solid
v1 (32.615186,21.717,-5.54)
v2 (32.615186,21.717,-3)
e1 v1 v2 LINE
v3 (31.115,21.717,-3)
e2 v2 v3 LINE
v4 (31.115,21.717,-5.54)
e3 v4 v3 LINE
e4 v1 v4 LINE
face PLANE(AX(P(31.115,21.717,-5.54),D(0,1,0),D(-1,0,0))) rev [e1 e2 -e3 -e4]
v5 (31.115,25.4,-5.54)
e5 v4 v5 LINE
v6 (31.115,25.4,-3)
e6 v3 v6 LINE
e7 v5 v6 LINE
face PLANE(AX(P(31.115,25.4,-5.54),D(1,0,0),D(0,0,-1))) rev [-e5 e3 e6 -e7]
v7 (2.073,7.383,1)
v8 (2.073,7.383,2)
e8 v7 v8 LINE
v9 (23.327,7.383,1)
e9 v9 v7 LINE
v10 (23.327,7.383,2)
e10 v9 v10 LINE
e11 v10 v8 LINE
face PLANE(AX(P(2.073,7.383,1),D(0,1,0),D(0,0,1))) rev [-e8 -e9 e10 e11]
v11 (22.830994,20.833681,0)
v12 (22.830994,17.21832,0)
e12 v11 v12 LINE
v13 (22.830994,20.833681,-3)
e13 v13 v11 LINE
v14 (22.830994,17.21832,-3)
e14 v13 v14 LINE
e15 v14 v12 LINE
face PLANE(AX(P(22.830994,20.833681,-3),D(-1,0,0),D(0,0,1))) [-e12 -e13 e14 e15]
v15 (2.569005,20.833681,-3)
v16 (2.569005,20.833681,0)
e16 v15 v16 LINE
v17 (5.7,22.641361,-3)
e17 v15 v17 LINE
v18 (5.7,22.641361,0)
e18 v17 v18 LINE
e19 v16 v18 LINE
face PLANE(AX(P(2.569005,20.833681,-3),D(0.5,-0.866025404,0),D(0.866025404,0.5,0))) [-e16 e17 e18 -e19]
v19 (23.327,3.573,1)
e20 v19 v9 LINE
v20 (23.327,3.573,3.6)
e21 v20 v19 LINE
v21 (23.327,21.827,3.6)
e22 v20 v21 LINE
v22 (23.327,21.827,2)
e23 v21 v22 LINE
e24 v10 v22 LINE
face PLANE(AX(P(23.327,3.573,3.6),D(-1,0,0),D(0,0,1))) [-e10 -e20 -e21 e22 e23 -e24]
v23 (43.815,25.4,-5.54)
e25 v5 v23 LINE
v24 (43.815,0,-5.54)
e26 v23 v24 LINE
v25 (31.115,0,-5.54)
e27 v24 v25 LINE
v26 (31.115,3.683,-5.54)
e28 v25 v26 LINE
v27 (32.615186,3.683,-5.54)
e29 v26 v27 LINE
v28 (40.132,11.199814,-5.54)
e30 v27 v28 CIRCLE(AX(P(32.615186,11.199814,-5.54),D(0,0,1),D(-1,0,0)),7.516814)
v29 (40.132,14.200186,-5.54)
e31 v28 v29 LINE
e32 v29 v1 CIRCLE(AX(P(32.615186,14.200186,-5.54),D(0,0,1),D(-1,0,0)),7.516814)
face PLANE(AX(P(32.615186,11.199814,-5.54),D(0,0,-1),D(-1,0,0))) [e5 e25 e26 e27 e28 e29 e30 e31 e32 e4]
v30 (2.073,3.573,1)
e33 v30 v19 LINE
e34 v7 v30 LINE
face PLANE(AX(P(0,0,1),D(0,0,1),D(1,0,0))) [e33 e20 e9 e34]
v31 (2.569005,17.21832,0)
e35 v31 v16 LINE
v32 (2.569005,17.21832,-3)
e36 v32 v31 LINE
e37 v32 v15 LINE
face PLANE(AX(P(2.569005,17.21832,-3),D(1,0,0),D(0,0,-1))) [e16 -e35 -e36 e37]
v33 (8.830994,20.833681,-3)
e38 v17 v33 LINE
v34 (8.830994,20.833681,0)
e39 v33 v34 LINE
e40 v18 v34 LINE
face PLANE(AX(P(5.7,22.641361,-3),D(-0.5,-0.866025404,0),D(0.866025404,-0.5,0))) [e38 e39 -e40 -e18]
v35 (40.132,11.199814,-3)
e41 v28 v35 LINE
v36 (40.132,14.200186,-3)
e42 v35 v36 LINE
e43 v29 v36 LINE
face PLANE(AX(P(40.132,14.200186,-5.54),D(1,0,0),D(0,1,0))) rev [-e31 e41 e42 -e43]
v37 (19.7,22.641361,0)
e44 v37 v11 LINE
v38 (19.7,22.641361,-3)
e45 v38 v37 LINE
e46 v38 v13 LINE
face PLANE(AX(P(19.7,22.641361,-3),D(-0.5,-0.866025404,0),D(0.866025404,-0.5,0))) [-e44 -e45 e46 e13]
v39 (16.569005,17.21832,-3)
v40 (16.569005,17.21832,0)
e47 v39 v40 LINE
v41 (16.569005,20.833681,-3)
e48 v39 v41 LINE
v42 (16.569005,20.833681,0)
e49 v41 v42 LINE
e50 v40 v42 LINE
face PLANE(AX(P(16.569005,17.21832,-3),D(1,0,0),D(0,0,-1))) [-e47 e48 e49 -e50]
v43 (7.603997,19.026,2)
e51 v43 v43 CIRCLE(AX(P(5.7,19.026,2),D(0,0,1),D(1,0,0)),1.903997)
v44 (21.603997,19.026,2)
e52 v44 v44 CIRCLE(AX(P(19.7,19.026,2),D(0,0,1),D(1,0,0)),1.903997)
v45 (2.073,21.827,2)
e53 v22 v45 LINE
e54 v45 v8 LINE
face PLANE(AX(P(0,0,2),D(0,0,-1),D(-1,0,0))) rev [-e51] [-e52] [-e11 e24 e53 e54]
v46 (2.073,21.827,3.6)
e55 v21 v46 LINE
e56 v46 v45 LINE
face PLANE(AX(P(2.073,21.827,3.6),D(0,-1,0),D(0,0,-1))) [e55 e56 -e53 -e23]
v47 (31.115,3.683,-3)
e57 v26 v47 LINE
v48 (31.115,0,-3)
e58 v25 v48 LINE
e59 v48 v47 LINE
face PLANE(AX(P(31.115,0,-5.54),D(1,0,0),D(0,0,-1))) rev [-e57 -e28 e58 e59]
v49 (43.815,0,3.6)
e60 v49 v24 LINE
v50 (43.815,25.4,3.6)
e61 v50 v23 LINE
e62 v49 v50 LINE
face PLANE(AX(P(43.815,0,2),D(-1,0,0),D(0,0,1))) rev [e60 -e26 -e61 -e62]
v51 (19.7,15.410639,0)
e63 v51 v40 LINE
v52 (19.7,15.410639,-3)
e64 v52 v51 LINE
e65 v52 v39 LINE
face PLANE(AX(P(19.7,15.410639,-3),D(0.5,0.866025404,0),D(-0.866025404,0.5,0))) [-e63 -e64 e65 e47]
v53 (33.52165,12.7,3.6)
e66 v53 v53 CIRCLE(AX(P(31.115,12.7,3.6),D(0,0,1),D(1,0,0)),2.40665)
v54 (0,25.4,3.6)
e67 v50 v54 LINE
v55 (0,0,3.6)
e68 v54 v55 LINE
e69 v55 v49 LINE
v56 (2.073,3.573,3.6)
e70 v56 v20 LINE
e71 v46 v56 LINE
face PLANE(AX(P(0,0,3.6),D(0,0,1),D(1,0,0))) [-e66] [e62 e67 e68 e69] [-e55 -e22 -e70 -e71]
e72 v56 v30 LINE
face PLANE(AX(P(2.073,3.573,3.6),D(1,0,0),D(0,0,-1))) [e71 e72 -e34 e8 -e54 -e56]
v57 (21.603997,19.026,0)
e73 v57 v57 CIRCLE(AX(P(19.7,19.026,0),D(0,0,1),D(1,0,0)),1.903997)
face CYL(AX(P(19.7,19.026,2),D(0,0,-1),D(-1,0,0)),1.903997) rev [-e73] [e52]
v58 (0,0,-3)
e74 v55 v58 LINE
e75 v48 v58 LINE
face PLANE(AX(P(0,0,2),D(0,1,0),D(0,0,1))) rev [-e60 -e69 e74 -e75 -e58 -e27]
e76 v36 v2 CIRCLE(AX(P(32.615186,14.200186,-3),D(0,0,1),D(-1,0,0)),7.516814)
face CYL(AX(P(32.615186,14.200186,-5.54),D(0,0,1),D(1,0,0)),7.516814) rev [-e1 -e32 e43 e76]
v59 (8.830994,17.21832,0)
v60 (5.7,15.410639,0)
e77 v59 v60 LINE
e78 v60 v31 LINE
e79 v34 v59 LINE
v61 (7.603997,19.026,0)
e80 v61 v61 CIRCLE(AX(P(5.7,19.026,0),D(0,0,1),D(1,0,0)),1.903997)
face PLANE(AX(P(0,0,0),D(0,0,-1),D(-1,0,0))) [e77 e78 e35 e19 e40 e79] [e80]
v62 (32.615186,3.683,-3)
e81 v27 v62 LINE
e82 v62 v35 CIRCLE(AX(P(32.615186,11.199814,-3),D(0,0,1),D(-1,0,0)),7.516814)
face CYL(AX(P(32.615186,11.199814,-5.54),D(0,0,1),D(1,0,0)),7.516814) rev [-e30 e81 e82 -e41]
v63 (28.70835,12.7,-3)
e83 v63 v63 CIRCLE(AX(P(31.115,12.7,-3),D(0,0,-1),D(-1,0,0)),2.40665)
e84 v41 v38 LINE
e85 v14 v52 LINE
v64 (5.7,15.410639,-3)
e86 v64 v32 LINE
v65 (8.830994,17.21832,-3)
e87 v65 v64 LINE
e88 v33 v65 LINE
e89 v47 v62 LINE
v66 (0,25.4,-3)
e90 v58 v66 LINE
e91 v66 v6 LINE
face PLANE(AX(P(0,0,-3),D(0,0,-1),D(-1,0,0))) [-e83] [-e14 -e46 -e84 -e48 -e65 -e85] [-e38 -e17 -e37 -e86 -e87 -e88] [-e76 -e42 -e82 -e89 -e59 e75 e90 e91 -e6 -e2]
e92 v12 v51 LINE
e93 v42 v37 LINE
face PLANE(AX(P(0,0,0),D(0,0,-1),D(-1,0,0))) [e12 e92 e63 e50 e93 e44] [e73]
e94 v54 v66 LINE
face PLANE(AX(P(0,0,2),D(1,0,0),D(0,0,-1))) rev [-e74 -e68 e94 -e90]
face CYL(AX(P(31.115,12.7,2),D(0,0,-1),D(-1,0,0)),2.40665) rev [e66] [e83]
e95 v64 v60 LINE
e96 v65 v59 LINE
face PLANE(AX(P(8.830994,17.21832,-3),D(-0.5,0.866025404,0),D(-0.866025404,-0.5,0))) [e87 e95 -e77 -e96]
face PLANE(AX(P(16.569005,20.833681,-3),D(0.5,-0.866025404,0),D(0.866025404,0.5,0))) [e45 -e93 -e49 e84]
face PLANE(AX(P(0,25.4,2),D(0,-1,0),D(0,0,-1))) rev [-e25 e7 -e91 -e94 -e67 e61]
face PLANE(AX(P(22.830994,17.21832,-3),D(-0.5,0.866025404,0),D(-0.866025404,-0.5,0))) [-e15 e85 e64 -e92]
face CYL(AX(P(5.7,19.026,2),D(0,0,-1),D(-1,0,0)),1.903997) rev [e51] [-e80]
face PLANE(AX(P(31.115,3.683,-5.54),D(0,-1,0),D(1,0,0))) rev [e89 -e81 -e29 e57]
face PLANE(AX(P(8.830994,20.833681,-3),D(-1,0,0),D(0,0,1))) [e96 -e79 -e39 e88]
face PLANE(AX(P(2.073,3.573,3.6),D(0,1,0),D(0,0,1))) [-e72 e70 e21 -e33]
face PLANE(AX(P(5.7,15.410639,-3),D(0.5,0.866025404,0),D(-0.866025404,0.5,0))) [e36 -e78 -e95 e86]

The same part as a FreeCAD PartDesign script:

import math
import FreeCAD as App
import Part
import Sketcher
Q = App.Units.Quantity


def add_polygon(sketch, points):
    """Adds a closed chain of lines whose ends are joined by coincident constraints."""
    first, n = sketch.GeometryCount, len(points)
    for a, b in zip(points, points[1:] + points[:1]):
        sketch.addGeometry(Part.LineSegment(App.Vector(*a, 0), App.Vector(*b, 0)), False)
    for i in range(n):
        sketch.addConstraint(Sketcher.Constraint("Coincident", first + i, 2, first + (i + 1) % n, 1))

doc = App.newDocument("Part")
body = doc.addObject("PartDesign::Body", "Body")

sketch1 = body.newObject("Sketcher::SketchObject", "Sketch")
sketch1.AttachmentSupport = (doc.getObject("XY_Plane"), [""])
sketch1.MapMode = "FlatFace"
add_polygon(sketch1, [(0, 25.4), (0, 0), (43.8, 0), (43.8, 25.4)])
sketch1.addGeometry(Part.Circle(App.Vector(31.1, 12.7, 0), App.Vector(0, 0, 1), 2.4), False)
sketch1.addGeometry(Part.Circle(App.Vector(5.7, 19, 0), App.Vector(0, 0, 1), 1.9), False)
sketch1.addGeometry(Part.Circle(App.Vector(19.7, 19, 0), App.Vector(0, 0, 1), 1.9), False)
sketch1.addConstraint([
    Sketcher.Constraint("Vertical", 0),
    Sketcher.Constraint("Horizontal", 1),
    Sketcher.Constraint("Vertical", 2),
    Sketcher.Constraint("Horizontal", 3),
    Sketcher.Constraint("Coincident", 0, 2, -1, 1),
    Sketcher.Constraint("Equal", 5, 6),
    Sketcher.Constraint("Horizontal", 5, 3, 6, 3),
    Sketcher.Constraint("DistanceY", 0, 2, 0, 1, Q("1 in")),
    Sketcher.Constraint("Diameter", 4, Q("0.1895 in")),
    Sketcher.Constraint("DistanceY", -1, 1, 4, 3, Q("0.5 in")),
    Sketcher.Constraint("DistanceX", 4, 3, 1, 2, Q("0.5 in")),
    Sketcher.Constraint("DistanceX", 1, 1, 1, 2, Q("1.725 in")),
    Sketcher.Constraint("Diameter", 5, Q("3.807993 mm")),
    Sketcher.Constraint("DistanceX", -1, 1, 5, 3, Q("5.7 mm")),
    Sketcher.Constraint("DistanceY", -1, 1, 5, 3, Q("19.026 mm")),
    Sketcher.Constraint("DistanceX", -1, 1, 6, 3, Q("19.7 mm")),
])
pad1 = body.newObject("PartDesign::Pad", "Pad")
pad1.Profile = sketch1
pad1.Length = 2

sketch2 = body.newObject("Sketcher::SketchObject", "Sketch001")
sketch2.AttachmentSupport = (doc.getObject("XY_Plane"), [""])
sketch2.MapMode = "FlatFace"
sketch2.AttachmentOffset = App.Placement(App.Vector(0, 0, 2), App.Rotation())
add_polygon(sketch2, [(0, 25.4), (0, 0), (43.8, 0), (43.8, 25.4)])
add_polygon(sketch2, [(23.3, 3.6), (2.1, 3.6), (2.1, 21.8), (23.3, 21.8)])
sketch2.addGeometry(Part.Circle(App.Vector(31.1, 12.7, 0), App.Vector(0, 0, 1), 2.4), False)
sketch2.addConstraint([
    Sketcher.Constraint("Vertical", 0),
    Sketcher.Constraint("Horizontal", 1),
    Sketcher.Constraint("Vertical", 2),
    Sketcher.Constraint("Horizontal", 3),
    Sketcher.Constraint("Horizontal", 4),
    Sketcher.Constraint("Vertical", 5),
    Sketcher.Constraint("Horizontal", 6),
    Sketcher.Constraint("Vertical", 7),
    Sketcher.Constraint("Coincident", 0, 2, -1, 1),
    Sketcher.Constraint("DistanceY", 0, 2, 0, 1, Q("1 in")),
    Sketcher.Constraint("Diameter", 8, Q("0.1895 in")),
    Sketcher.Constraint("DistanceY", -1, 1, 8, 3, Q("0.5 in")),
    Sketcher.Constraint("DistanceX", 8, 3, 1, 2, Q("0.5 in")),
    Sketcher.Constraint("DistanceX", 1, 1, 1, 2, Q("1.725 in")),
    Sketcher.Constraint("DistanceX", 4, 2, 4, 1, Q("21.254 mm")),
    Sketcher.Constraint("DistanceY", 5, 1, 5, 2, Q("18.254 mm")),
    Sketcher.Constraint("DistanceX", -1, 1, 4, 2, Q("2.073 mm")),
    Sketcher.Constraint("DistanceY", -1, 1, 4, 2, Q("3.573 mm")),
])
pad2 = body.newObject("PartDesign::Pad", "Pad001")
pad2.Profile = sketch2
pad2.Length = 1.6

sketch3 = body.newObject("Sketcher::SketchObject", "Sketch002")
sketch3.AttachmentSupport = (doc.getObject("XY_Plane"), [""])
sketch3.MapMode = "FlatFace"
sketch3.AttachmentOffset = App.Placement(App.Vector(0, 0, -3), App.Rotation())
add_polygon(sketch3, [(43.8, 25.4), (43.8, 0), (0, 0), (0, 25.4)])
sketch3.addGeometry(Part.Circle(App.Vector(31.1, 12.7, 0), App.Vector(0, 0, 1), 2.4), False)
add_polygon(sketch3, [(16.6, 20.8), (16.6, 17.2), (19.7, 15.4), (22.8, 17.2), (22.8, 20.8), (19.7, 22.6)])
add_polygon(sketch3, [(5.7, 22.6), (2.6, 20.8), (2.6, 17.2), (5.7, 15.4), (8.8, 17.2), (8.8, 20.8)])
sketch3.addConstraint([
    Sketcher.Constraint("Vertical", 0),
    Sketcher.Constraint("Horizontal", 1),
    Sketcher.Constraint("Vertical", 2),
    Sketcher.Constraint("Horizontal", 3),
    Sketcher.Constraint("Vertical", 5),
    Sketcher.Constraint("Vertical", 8),
    Sketcher.Constraint("Vertical", 12),
    Sketcher.Constraint("Vertical", 15),
    Sketcher.Constraint("Coincident", 1, 2, -1, 1),
    Sketcher.Constraint("Parallel", 6, 9),
    Sketcher.Constraint("Parallel", 7, 10),
    Sketcher.Constraint("Parallel", 10, 11),
    Sketcher.Constraint("Parallel", 9, 13),
    Sketcher.Constraint("Parallel", 11, 14),
    Sketcher.Constraint("Parallel", 13, 16),
    Sketcher.Constraint("Horizontal", 5, 2, 7, 2),
    Sketcher.Constraint("Horizontal", 8, 2, 10, 2),
    Sketcher.Constraint("Horizontal", 10, 2, 11, 2),
    Sketcher.Constraint("Horizontal", 7, 2, 12, 2),
    Sketcher.Constraint("Horizontal", 6, 2, 13, 2),
    Sketcher.Constraint("Horizontal", 12, 2, 14, 2),
    Sketcher.Constraint("Horizontal", 11, 2, 15, 2),
    Sketcher.Constraint("Vertical", 6, 2, 9, 2),
    Sketcher.Constraint("DistanceY", 0, 2, 0, 1, Q("1 in")),
    Sketcher.Constraint("Angle", 6, Q("-30 deg")),
    Sketcher.Constraint("Diameter", 4, Q("0.1895 in")),
    Sketcher.Constraint("DistanceY", -1, 1, 4, 3, Q("0.5 in")),
    Sketcher.Constraint("DistanceX", 4, 3, 0, 2, Q("0.5 in")),
    Sketcher.Constraint("DistanceX", 1, 2, 1, 1, Q("1.725 in")),
    Sketcher.Constraint("DistanceY", 5, 2, 5, 1, Q("3.615361 mm")),
    Sketcher.Constraint("DistanceX", -1, 1, 6, 2, Q("19.7 mm")),
    Sketcher.Constraint("DistanceX", -1, 1, 13, 2, Q("5.7 mm")),
    Sketcher.Constraint("Distance", 6, Q("3.615361 mm")),
    Sketcher.Constraint("DistanceY", -1, 1, 5, 2, Q("17.21832 mm")),
])
pad3 = body.newObject("PartDesign::Pad", "Pad002")
pad3.Profile = sketch3
pad3.Length = 3

sketch4 = body.newObject("Sketcher::SketchObject", "Sketch003")
sketch4.AttachmentSupport = (doc.getObject("XY_Plane"), [""])
sketch4.MapMode = "FlatFace"
sketch4.AttachmentOffset = App.Placement(App.Vector(0, 0, -3), App.Rotation())
sketch4.addGeometry([
    Part.LineSegment(App.Vector(31.1, 21.7, 0), App.Vector(31.1, 25.4, 0)),
    Part.LineSegment(App.Vector(31.1, 25.4, 0), App.Vector(43.8, 25.4, 0)),
    Part.LineSegment(App.Vector(43.8, 25.4, 0), App.Vector(43.8, 0, 0)),
    Part.LineSegment(App.Vector(43.8, 0, 0), App.Vector(31.1, 0, 0)),
    Part.LineSegment(App.Vector(31.1, 0, 0), App.Vector(31.1, 3.7, 0)),
    Part.LineSegment(App.Vector(31.1, 3.7, 0), App.Vector(32.6, 3.7, 0)),
    Part.ArcOfCircle(Part.Circle(App.Vector(32.6, 11.2, 0), App.Vector(0, 0, 1), 7.5), math.radians(-90), math.radians(0)),
    Part.LineSegment(App.Vector(40.1, 11.2, 0), App.Vector(40.1, 14.2, 0)),
    Part.ArcOfCircle(Part.Circle(App.Vector(32.6, 14.2, 0), App.Vector(0, 0, 1), 7.5), math.radians(0), math.radians(90)),
    Part.LineSegment(App.Vector(32.6, 21.7, 0), App.Vector(31.1, 21.7, 0)),
], False)
sketch4.addConstraint([
    Sketcher.Constraint("Coincident", 0, 2, 1, 1),
    Sketcher.Constraint("Coincident", 1, 2, 2, 1),
    Sketcher.Constraint("Coincident", 2, 2, 3, 1),
    Sketcher.Constraint("Coincident", 3, 2, 4, 1),
    Sketcher.Constraint("Coincident", 4, 2, 5, 1),
    Sketcher.Constraint("Tangent", 5, 2, 6, 1),
    Sketcher.Constraint("Tangent", 6, 2, 7, 1),
    Sketcher.Constraint("Tangent", 7, 2, 8, 1),
    Sketcher.Constraint("Tangent", 8, 2, 9, 1),
    Sketcher.Constraint("Coincident", 9, 2, 0, 1),
    Sketcher.Constraint("Vertical", 0),
    Sketcher.Constraint("Horizontal", 1),
    Sketcher.Constraint("Vertical", 2),
    Sketcher.Constraint("Horizontal", 3),
    Sketcher.Constraint("Vertical", 4),
    Sketcher.Constraint("Horizontal", 5),
    Sketcher.Constraint("Vertical", 7),
    Sketcher.Constraint("Horizontal", 9),
    Sketcher.Constraint("Equal", 6, 8),
    Sketcher.Constraint("PointOnObject", 2, 2, -1),
    Sketcher.Constraint("Vertical", 0, 2, 3, 2),
    Sketcher.Constraint("Equal", 0, 4),
    Sketcher.Constraint("DistanceY", 2, 2, 2, 1, Q("1 in")),
    Sketcher.Constraint("DistanceX", 1, 1, 1, 2, Q("0.5 in")),
    Sketcher.Constraint("DistanceY", 0, 1, 0, 2, Q("0.145 in")),
    Sketcher.Constraint("DistanceX", -1, 1, 6, 2, Q("1.58 in")),
    Sketcher.Constraint("DistanceX", -1, 1, 0, 2, Q("1.225 in")),
    Sketcher.Constraint("Radius", 6, Q("7.516814 mm")),
])
pad4 = body.newObject("PartDesign::Pad", "Pad003")
pad4.Profile = sketch4
pad4.Length = Q("0.1 in")
pad4.Reversed = True

sketch5 = body.newObject("Sketcher::SketchObject", "Sketch004")
sketch5.AttachmentSupport = (doc.getObject("XY_Plane"), [""])
sketch5.MapMode = "FlatFace"
sketch5.AttachmentOffset = App.Placement(App.Vector(0, 0, 2), App.Rotation())
add_polygon(sketch5, [(2.1, 7.4), (2.1, 3.6), (23.3, 3.6), (23.3, 7.4)])
sketch5.addConstraint([
    Sketcher.Constraint("Vertical", 0),
    Sketcher.Constraint("Horizontal", 1),
    Sketcher.Constraint("Vertical", 2),
    Sketcher.Constraint("Horizontal", 3),
    Sketcher.Constraint("DistanceY", 0, 2, 0, 1, Q("0.15 in")),
    Sketcher.Constraint("DistanceX", 1, 1, 1, 2, Q("21.254 mm")),
    Sketcher.Constraint("DistanceX", -1, 1, 0, 2, Q("2.073 mm")),
    Sketcher.Constraint("DistanceY", -1, 1, 0, 2, Q("3.573 mm")),
])
pocket1 = body.newObject("PartDesign::Pocket", "Pocket")
pocket1.Profile = sketch5
pocket1.Length = 1

doc.recompute()
